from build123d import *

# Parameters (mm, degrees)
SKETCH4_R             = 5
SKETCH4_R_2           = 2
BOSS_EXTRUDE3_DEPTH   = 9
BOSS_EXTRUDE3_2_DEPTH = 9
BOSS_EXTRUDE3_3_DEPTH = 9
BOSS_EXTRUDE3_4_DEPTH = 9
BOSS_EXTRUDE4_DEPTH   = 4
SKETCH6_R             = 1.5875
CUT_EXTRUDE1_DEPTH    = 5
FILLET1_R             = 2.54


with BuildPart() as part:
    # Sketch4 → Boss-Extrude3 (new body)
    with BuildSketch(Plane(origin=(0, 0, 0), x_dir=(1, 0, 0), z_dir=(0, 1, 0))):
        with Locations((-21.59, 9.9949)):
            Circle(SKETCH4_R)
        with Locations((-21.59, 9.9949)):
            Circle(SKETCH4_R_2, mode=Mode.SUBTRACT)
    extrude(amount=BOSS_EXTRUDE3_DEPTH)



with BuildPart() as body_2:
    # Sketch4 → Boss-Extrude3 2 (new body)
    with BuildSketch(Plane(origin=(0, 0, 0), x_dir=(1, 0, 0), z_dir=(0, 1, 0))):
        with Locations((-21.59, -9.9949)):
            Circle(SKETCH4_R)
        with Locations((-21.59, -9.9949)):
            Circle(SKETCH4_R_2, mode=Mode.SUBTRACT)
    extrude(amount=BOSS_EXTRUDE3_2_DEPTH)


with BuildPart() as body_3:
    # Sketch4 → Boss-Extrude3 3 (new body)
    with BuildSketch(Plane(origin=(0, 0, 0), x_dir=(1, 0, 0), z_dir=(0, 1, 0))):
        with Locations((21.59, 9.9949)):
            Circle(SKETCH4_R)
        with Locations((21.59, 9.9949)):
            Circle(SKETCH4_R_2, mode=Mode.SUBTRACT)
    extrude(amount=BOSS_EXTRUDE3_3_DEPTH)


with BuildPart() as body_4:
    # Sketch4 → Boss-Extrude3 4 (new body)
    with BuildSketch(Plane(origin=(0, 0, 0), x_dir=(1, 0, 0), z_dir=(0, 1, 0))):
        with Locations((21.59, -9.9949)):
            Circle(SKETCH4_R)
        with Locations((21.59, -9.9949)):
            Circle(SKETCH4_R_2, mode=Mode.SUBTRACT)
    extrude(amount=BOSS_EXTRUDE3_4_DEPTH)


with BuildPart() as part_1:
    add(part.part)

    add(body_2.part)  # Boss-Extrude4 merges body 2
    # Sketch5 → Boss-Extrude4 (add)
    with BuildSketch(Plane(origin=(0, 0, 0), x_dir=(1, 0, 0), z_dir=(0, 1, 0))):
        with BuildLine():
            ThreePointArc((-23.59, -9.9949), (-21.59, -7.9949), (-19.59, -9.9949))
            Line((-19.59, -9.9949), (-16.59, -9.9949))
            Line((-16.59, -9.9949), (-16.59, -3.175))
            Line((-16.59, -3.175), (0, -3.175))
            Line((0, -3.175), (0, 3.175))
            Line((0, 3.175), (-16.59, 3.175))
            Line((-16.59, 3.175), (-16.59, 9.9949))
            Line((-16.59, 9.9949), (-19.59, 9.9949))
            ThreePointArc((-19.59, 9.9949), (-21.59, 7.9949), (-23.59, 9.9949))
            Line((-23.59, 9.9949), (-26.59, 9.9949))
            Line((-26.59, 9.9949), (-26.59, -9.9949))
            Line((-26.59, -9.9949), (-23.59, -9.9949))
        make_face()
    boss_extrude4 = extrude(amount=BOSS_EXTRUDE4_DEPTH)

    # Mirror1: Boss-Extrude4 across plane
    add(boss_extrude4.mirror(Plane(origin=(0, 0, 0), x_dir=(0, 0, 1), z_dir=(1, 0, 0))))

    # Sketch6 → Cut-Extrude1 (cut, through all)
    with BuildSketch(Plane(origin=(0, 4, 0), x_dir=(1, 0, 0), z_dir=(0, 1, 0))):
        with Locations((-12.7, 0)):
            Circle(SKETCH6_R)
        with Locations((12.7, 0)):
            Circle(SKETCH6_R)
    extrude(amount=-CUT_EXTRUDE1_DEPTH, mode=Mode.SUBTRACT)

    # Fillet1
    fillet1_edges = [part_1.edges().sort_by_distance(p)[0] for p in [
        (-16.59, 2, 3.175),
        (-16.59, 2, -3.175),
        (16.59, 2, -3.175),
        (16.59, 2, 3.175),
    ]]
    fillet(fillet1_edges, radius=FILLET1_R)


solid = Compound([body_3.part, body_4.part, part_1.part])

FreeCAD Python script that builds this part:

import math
import FreeCAD as App
import Part
import Sketcher

V = App.Vector


def edges_at(feature, points):
    """Names of the edges that pass closest to the given points."""
    edges = feature.Shape.Edges
    near = lambda p: min(range(len(edges)), key=lambda i: edges[i].distToShape(Part.Vertex(*p))[0])
    return sorted({f"Edge{near(p) + 1}" for p in points})

doc = App.newDocument("Part")
params = doc.addObject("Spreadsheet::Sheet", "Params")
for row, (alias, value) in enumerate([
    ("sketch1_diameter", "10 mm"),
    ("sketch1_diameter2", "4 mm"),
    ("pad1_length", "9 mm"),
    ("sketch2_diameter", "10 mm"),
    ("sketch2_diameter2", "4 mm"),
    ("pad2_length", "9 mm"),
    ("sketch3_diameter", "10 mm"),
    ("sketch3_diameter2", "4 mm"),
    ("pad3_length", "9 mm"),
    ("sketch4_diameter", "10 mm"),
    ("sketch4_diameter2", "4 mm"),
    ("pad4_length", "9 mm"),
    ("sketch5_radius", "2 mm"),
    ("sketch5_width", "3 mm"),
    ("sketch5_width2", "16.59 mm"),
    ("sketch5_height", "6.35 mm"),
    ("pad5_length", "4 mm"),
    ("fillet_radius", "2.54 mm"),
], start=1):
    params.set(f"A{row}", alias)
    params.set(f"B{row}", "=" + value)
    params.setAlias(f"B{row}", alias)

body = doc.addObject("PartDesign::Body", "Body")

# Sketch on XZ plane
sketch1 = body.newObject("Sketcher::SketchObject", "Sketch")
sketch1.AttachmentSupport = (doc.getObject("XZ_Plane"), [""])
sketch1.MapMode = "FlatFace"
sketch1.addGeometry([
    Part.Circle(V(-21.6, -10, 0), V(0, 0, 1), 5),
    Part.Circle(V(-21.6, -10, 0), V(0, 0, 1), 2),
], False)
sketch1.addConstraint([
    Sketcher.Constraint("Coincident", 1, 3, 0, 3),
    Sketcher.Constraint("Diameter", 0, 10.0),
    Sketcher.Constraint("Diameter", 1, 4.0),
    Sketcher.Constraint("DistanceX", 0, 3, -1, 1, 21.59),
    Sketcher.Constraint("DistanceY", 0, 3, -1, 1, 9.9949),
])
sketch1.setExpression("Constraints[1]", "Params.sketch1_diameter")
sketch1.setExpression("Constraints[2]", "Params.sketch1_diameter2")
pad1 = body.newObject("PartDesign::Pad", "Pad")
pad1.Profile = sketch1
pad1.setExpression("Length", "Params.pad1_length")
pad1.Reversed = True
body2 = doc.addObject("PartDesign::Body", "Body001")

# Sketch on XZ plane
sketch2 = body2.newObject("Sketcher::SketchObject", "Sketch001")
sketch2.AttachmentSupport = (doc.getObject("XZ_Plane001"), [""])
sketch2.MapMode = "FlatFace"
sketch2.addGeometry([
    Part.Circle(V(-21.6, 10, 0), V(0, 0, 1), 5),
    Part.Circle(V(-21.6, 10, 0), V(0, 0, 1), 2),
], False)
sketch2.addConstraint([
    Sketcher.Constraint("Coincident", 1, 3, 0, 3),
    Sketcher.Constraint("Diameter", 0, 10.0),
    Sketcher.Constraint("Diameter", 1, 4.0),
    Sketcher.Constraint("DistanceX", 0, 3, -1, 1, 21.59),
    Sketcher.Constraint("DistanceY", -1, 1, 0, 3, 9.9949),
])
sketch2.setExpression("Constraints[1]", "Params.sketch2_diameter")
sketch2.setExpression("Constraints[2]", "Params.sketch2_diameter2")
pad2 = body2.newObject("PartDesign::Pad", "Pad001")
pad2.Profile = sketch2
pad2.setExpression("Length", "Params.pad2_length")
pad2.Reversed = True
body3 = doc.addObject("PartDesign::Body", "Body002")

# Sketch on XZ plane
sketch3 = body3.newObject("Sketcher::SketchObject", "Sketch002")
sketch3.AttachmentSupport = (doc.getObject("XZ_Plane002"), [""])
sketch3.MapMode = "FlatFace"
sketch3.addGeometry([
    Part.Circle(V(21.6, -10, 0), V(0, 0, 1), 5),
    Part.Circle(V(21.6, -10, 0), V(0, 0, 1), 2),
], False)
sketch3.addConstraint([
    Sketcher.Constraint("Coincident", 1, 3, 0, 3),
    Sketcher.Constraint("Diameter", 0, 10.0),
    Sketcher.Constraint("Diameter", 1, 4.0),
    Sketcher.Constraint("DistanceX", -1, 1, 0, 3, 21.59),
    Sketcher.Constraint("DistanceY", 0, 3, -1, 1, 9.9949),
])
sketch3.setExpression("Constraints[1]", "Params.sketch3_diameter")
sketch3.setExpression("Constraints[2]", "Params.sketch3_diameter2")
pad3 = body3.newObject("PartDesign::Pad", "Pad002")
pad3.Profile = sketch3
pad3.setExpression("Length", "Params.pad3_length")
pad3.Reversed = True
body4 = doc.addObject("PartDesign::Body", "Body003")

# Sketch on XZ plane
sketch4 = body4.newObject("Sketcher::SketchObject", "Sketch003")
sketch4.AttachmentSupport = (doc.getObject("XZ_Plane003"), [""])
sketch4.MapMode = "FlatFace"
sketch4.addGeometry([
    Part.Circle(V(21.6, 10, 0), V(0, 0, 1), 5),
    Part.Circle(V(21.6, 10, 0), V(0, 0, 1), 2),
], False)
sketch4.addConstraint([
    Sketcher.Constraint("Coincident", 1, 3, 0, 3),
    Sketcher.Constraint("Diameter", 0, 10.0),
    Sketcher.Constraint("Diameter", 1, 4.0),
    Sketcher.Constraint("DistanceX", -1, 1, 0, 3, 21.59),
    Sketcher.Constraint("DistanceY", -1, 1, 0, 3, 9.9949),
])
sketch4.setExpression("Constraints[1]", "Params.sketch4_diameter")
sketch4.setExpression("Constraints[2]", "Params.sketch4_diameter2")
pad4 = body4.newObject("PartDesign::Pad", "Pad003")
pad4.Profile = sketch4
pad4.setExpression("Length", "Params.pad4_length")
pad4.Reversed = True
body.AllowCompound = True
doc.recompute()

boolean = body.newObject("PartDesign::Boolean", "Boolean")
boolean.Type = "Fuse"
boolean.addObjects([body2])

# Sketch on XZ plane
sketch5 = body.newObject("Sketcher::SketchObject", "Sketch004")
sketch5.AttachmentSupport = (doc.getObject("XZ_Plane"), [""])
sketch5.MapMode = "FlatFace"
sketch5.addGeometry([
    Part.ArcOfCircle(Part.Circle(V(-21.6, 10, 0), V(0, 0, 1), 2), math.radians(180), math.radians(360)),  # 0
    Part.LineSegment(V(-19.6, 10, 0), V(-16.6, 10, 0)),  # 1
    Part.LineSegment(V(-16.6, 10, 0), V(-16.6, 3.2, 0)),  # 2
    Part.LineSegment(V(-16.6, 3.2, 0), V(0, 3.2, 0)),  # 3
    Part.LineSegment(V(0, 3.2, 0), V(0, -3.2, 0)),  # 4
    Part.LineSegment(V(0, -3.2, 0), V(-16.6, -3.2, 0)),  # 5
    Part.LineSegment(V(-16.6, -3.2, 0), V(-16.6, -10, 0)),  # 6
    Part.LineSegment(V(-16.6, -10, 0), V(-19.6, -10, 0)),  # 7
    Part.ArcOfCircle(Part.Circle(V(-21.6, -10, 0), V(0, 0, 1), 2), math.radians(0), math.radians(180)),  # 8
    Part.LineSegment(V(-23.6, -10, 0), V(-26.6, -10, 0)),  # 9
    Part.LineSegment(V(-26.6, -10, 0), V(-26.6, 10, 0)),  # 10
    Part.LineSegment(V(-26.6, 10, 0), V(-23.6, 10, 0)),  # 11
], False)
sketch5.addConstraint([
    Sketcher.Constraint("Coincident", 0, 2, 1, 1),
    Sketcher.Constraint("Coincident", 1, 2, 2, 1),
    Sketcher.Constraint("Coincident", 2, 2, 3, 1),
    Sketcher.Constraint("Coincident", 3, 2, 4, 1),
    Sketcher.Constraint("Coincident", 4, 2, 5, 1),
    Sketcher.Constraint("Coincident", 5, 2, 6, 1),
    Sketcher.Constraint("Coincident", 6, 2, 7, 1),
    Sketcher.Constraint("Coincident", 7, 2, 8, 1),
    Sketcher.Constraint("Coincident", 8, 2, 9, 1),
    Sketcher.Constraint("Coincident", 9, 2, 10, 1),
    Sketcher.Constraint("Coincident", 10, 2, 11, 1),
    Sketcher.Constraint("Coincident", 11, 2, 0, 1),
    Sketcher.Constraint("Horizontal", 1),
    Sketcher.Constraint("Vertical", 2),
    Sketcher.Constraint("Horizontal", 3),
    Sketcher.Constraint("Vertical", 4),
    Sketcher.Constraint("Horizontal", 5),
    Sketcher.Constraint("Vertical", 6),
    Sketcher.Constraint("Horizontal", 7),
    Sketcher.Constraint("Horizontal", 9),
    Sketcher.Constraint("Vertical", 10),
    Sketcher.Constraint("Horizontal", 11),
    Sketcher.Constraint("Equal", 0, 8),
    Sketcher.Constraint("Symmetric", 3, 2, 4, 2, -1, 1),
    Sketcher.Constraint("Symmetric", 0, 3, 8, 3, -1),
    Sketcher.Constraint("Symmetric", 1, 2, 6, 2, -1),
    Sketcher.Constraint("Horizontal", 8, 3, 6, 2),
    Sketcher.Constraint("Horizontal", 7, 2, 8, 2),
    Sketcher.Constraint("Horizontal", 1, 2, 10, 2),
    Sketcher.Constraint("Equal", 7, 9),
    Sketcher.Constraint("Radius", 0, 2.0),
    Sketcher.Constraint("DistanceX", 1, 1, 1, 2, 3.0),
    Sketcher.Constraint("DistanceX", 3, 1, 3, 2, 16.59),
    Sketcher.Constraint("DistanceY", 4, 2, 4, 1, 6.35),
    Sketcher.Constraint("DistanceY", 2, 2, 2, 1, 6.8199),
])
sketch5.setExpression("Constraints[30]", "Params.sketch5_radius")
sketch5.setExpression("Constraints[31]", "Params.sketch5_width")
sketch5.setExpression("Constraints[32]", "Params.sketch5_width2")
sketch5.setExpression("Constraints[33]", "Params.sketch5_height")
pad5 = body.newObject("PartDesign::Pad", "Pad004")
pad5.Profile = sketch5
pad5.setExpression("Length", "Params.pad5_length")
pad5.Reversed = True
doc.recompute()

mirrored = body.newObject("PartDesign::Mirrored", "Mirrored")
mirrored.Originals = [pad5]
mirrored.MirrorPlane = (doc.getObject("YZ_Plane"), [""])
body.Tip = mirrored

# Sketch on XZ plane
sketch6 = body.newObject("Sketcher::SketchObject", "Sketch005")
sketch6.AttachmentSupport = (doc.getObject("XZ_Plane"), [""])
sketch6.MapMode = "FlatFace"
sketch6.AttachmentOffset = App.Placement(V(0, 0, -4), App.Rotation())
sketch6.addGeometry([
    Part.Circle(V(-12.7, 0, 0), V(0, 0, 1), 1.6),
    Part.Circle(V(12.7, 0, 0), V(0, 0, 1), 1.6),
], False)
sketch6.addConstraint([
    Sketcher.Constraint("Equal", 0, 1),
    Sketcher.Constraint("Symmetric", 0, 3, 1, 3, -1, 1),
    Sketcher.Constraint("PointOnObject", 0, 3, -1),
    Sketcher.Constraint("Diameter", 0, 3.175),
    Sketcher.Constraint("DistanceX", 0, 3, -1, 1, 12.7),
])
pocket1 = body.newObject("PartDesign::Pocket", "Pocket")
pocket1.Profile = sketch6
pocket1.Type = "ThroughAll"
pocket1.Reversed = True
doc.recompute()

fillet = body.newObject("PartDesign::Fillet", "Fillet")
fillet.Base = (pocket1, edges_at(pocket1, [
    (-16.59, 2, 3.175),
    (-16.59, 2, -3.175),
    (16.59, 2, -3.175),
    (16.59, 2, 3.175),
]))
fillet.setExpression("Radius", "Params.fillet_radius")

doc.recompute()
